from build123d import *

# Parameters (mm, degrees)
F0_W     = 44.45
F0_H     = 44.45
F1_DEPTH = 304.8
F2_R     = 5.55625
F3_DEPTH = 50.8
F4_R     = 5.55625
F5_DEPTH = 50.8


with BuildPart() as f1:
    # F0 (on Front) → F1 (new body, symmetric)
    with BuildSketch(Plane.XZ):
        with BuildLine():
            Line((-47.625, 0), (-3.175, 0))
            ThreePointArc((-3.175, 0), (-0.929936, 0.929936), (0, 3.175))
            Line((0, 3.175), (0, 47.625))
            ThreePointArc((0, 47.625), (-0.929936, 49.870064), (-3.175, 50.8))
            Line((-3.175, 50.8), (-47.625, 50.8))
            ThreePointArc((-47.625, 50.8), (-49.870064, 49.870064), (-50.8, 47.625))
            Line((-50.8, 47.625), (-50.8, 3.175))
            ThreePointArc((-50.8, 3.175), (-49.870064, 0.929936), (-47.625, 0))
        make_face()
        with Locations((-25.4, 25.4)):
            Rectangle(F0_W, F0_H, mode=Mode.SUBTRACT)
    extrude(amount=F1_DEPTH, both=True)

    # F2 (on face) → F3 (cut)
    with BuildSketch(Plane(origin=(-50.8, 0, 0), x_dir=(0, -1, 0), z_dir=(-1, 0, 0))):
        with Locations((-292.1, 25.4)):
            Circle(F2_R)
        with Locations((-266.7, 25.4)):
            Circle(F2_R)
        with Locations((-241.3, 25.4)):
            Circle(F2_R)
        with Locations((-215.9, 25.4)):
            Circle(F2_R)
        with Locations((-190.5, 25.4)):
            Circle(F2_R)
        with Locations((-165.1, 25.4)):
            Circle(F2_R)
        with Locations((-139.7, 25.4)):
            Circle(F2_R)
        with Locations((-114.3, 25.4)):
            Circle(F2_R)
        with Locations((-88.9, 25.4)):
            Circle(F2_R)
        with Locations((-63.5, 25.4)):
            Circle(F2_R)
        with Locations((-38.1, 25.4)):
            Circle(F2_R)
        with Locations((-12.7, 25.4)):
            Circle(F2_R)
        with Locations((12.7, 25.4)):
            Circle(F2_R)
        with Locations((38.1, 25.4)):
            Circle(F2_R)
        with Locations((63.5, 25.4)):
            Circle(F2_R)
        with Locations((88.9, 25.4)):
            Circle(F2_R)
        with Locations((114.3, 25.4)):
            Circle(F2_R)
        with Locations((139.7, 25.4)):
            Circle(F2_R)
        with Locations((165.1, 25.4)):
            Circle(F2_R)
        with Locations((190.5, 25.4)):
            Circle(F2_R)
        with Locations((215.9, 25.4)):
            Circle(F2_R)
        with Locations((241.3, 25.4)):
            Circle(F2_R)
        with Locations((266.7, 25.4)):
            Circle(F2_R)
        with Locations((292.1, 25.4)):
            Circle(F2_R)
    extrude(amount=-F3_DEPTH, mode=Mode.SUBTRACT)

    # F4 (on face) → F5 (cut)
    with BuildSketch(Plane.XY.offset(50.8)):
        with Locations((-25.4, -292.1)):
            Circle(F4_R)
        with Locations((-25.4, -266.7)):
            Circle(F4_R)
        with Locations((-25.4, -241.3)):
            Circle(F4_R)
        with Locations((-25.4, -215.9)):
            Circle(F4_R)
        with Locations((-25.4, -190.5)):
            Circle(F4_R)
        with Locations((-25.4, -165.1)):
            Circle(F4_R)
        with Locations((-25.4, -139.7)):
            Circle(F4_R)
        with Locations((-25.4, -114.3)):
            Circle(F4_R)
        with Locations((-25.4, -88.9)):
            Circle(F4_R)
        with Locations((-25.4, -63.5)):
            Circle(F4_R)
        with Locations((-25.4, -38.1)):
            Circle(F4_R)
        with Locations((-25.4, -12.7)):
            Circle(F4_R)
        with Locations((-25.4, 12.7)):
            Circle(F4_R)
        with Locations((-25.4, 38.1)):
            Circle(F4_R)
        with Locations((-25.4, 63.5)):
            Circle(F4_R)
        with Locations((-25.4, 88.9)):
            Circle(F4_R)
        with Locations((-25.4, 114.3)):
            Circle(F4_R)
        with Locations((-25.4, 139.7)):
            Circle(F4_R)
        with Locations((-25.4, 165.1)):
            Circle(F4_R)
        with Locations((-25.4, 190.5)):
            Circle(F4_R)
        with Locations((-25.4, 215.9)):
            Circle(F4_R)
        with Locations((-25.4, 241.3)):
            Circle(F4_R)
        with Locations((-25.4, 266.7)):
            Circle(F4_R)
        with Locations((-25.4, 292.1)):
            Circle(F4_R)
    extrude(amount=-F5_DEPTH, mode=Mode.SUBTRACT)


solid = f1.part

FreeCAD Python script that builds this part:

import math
import FreeCAD as App
import Part
import Sketcher

V = App.Vector
Q = App.Units.Quantity


def add_polygon(sketch, points):
    """Adds a closed chain of lines whose ends are joined by coincident constraints."""
    first, n = sketch.GeometryCount, len(points)
    for a, b in zip(points, points[1:] + points[:1]):
        sketch.addGeometry(Part.LineSegment(App.Vector(*a, 0), App.Vector(*b, 0)), False)
    for i in range(n):
        sketch.addConstraint(Sketcher.Constraint("Coincident", first + i, 2, first + (i + 1) % n, 1))

doc = App.newDocument("Part")
body = doc.addObject("PartDesign::Body", "Body")

# Sketch on XZ plane
sketch1 = doc.addObject("Sketcher::SketchObject", "Sketch")
body.addObject(sketch1)
sketch1.AttachmentSupport = (doc.XZ_Plane, [""])
sketch1.MapMode = "FlatFace"
sketch1.addGeometry(Part.LineSegment(V(-47.625, 0, 0), V(-3.175, 0, 0)), False)  # 0
sketch1.addGeometry(Part.ArcOfCircle(Part.Circle(V(-3.175, 3.175, 0), V(0, 0, 1), 3.175), math.radians(-89.999998), math.radians(-0.000002)), False)  # 1
sketch1.addGeometry(Part.LineSegment(V(0, 3.175, 0), V(0, 47.625, 0)), False)  # 2
sketch1.addGeometry(Part.ArcOfCircle(Part.Circle(V(-3.175, 47.625, 0), V(0, 0, 1), 3.175), math.radians(0.000002), math.radians(89.999998)), False)  # 3
sketch1.addGeometry(Part.LineSegment(V(-3.175, 50.8, 0), V(-47.625, 50.8, 0)), False)  # 4
sketch1.addGeometry(Part.ArcOfCircle(Part.Circle(V(-47.625, 47.625, 0), V(0, 0, 1), 3.175), math.radians(90.000002), math.radians(179.999998)), False)  # 5
sketch1.addGeometry(Part.LineSegment(V(-50.8, 47.625, 0), V(-50.8, 3.175, 0)), False)  # 6
sketch1.addGeometry(Part.ArcOfCircle(Part.Circle(V(-47.625, 3.175, 0), V(0, 0, 1), 3.175), math.radians(-179.999998), math.radians(-90.000002)), False)  # 7
add_polygon(sketch1, [(-3.175, 3.175), (-47.625, 3.175), (-47.625, 47.625), (-3.175, 47.625)])  # lines 8-11
sketch1.addConstraint([
    Sketcher.Constraint("Tangent", 0, 2, 1, 1),
    Sketcher.Constraint("Tangent", 1, 2, 2, 1),
    Sketcher.Constraint("Tangent", 2, 2, 3, 1),
    Sketcher.Constraint("Tangent", 3, 2, 4, 1),
    Sketcher.Constraint("Tangent", 4, 2, 5, 1),
    Sketcher.Constraint("Tangent", 5, 2, 6, 1),
    Sketcher.Constraint("Tangent", 6, 2, 7, 1),
    Sketcher.Constraint("Tangent", 7, 2, 0, 1),
    Sketcher.Constraint("Horizontal", 0),
    Sketcher.Constraint("Vertical", 2),
    Sketcher.Constraint("Horizontal", 4),
    Sketcher.Constraint("Vertical", 6),
    Sketcher.Constraint("Horizontal", 8),
    Sketcher.Constraint("Vertical", 9),
    Sketcher.Constraint("Horizontal", 10),
    Sketcher.Constraint("Vertical", 11),
    Sketcher.Constraint("Coincident", 8, 2, 7, 3),
    Sketcher.Constraint("Coincident", 9, 2, 5, 3),
    Sketcher.Constraint("Coincident", 10, 2, 3, 3),
    Sketcher.Constraint("Equal", 1, 3),
    Sketcher.Constraint("PointOnObject", 0, 2, -1),
    Sketcher.Constraint("PointOnObject", 1, 2, -2),
    Sketcher.Constraint("Equal", 10, 2),
    Sketcher.Constraint("DistanceY", -1, 1, 3, 2, Q("2 in")),
    Sketcher.Constraint("Radius", 1, Q("0.125 in")),
])
pad1 = doc.addObject("PartDesign::Pad", "Pad")
body.addObject(pad1)
pad1.Profile = sketch1
pad1.Length = Q("24 in")
pad1.Midplane = True

# Sketch on YZ plane
sketch2 = doc.addObject("Sketcher::SketchObject", "Sketch001")
body.addObject(sketch2)
sketch2.AttachmentSupport = (doc.YZ_Plane, [""])
sketch2.MapMode = "FlatFace"
sketch2.AttachmentOffset = App.Placement(V(0, 0, -2 * 25.4), App.Rotation())
sketch2.addGeometry([
    Part.Circle(V(292.1, 25.4, 0), V(0, 0, 1), 5.55625),  # 0
    Part.Circle(V(266.7, 25.4, 0), V(0, 0, 1), 5.55625),  # 1
    Part.Circle(V(241.3, 25.4, 0), V(0, 0, 1), 5.55625),  # 2
    Part.Circle(V(215.9, 25.4, 0), V(0, 0, 1), 5.55625),  # 3
    Part.Circle(V(190.5, 25.4, 0), V(0, 0, 1), 5.55625),  # 4
    Part.Circle(V(165.1, 25.4, 0), V(0, 0, 1), 5.55625),  # 5
    Part.Circle(V(139.7, 25.4, 0), V(0, 0, 1), 5.55625),  # 6
    Part.Circle(V(114.3, 25.4, 0), V(0, 0, 1), 5.55625),  # 7
    Part.Circle(V(88.9, 25.4, 0), V(0, 0, 1), 5.55625),  # 8
    Part.Circle(V(63.5, 25.4, 0), V(0, 0, 1), 5.55625),  # 9
    Part.Circle(V(38.1, 25.4, 0), V(0, 0, 1), 5.55625),  # 10
    Part.Circle(V(12.7, 25.4, 0), V(0, 0, 1), 5.55625),  # 11
    Part.Circle(V(-12.7, 25.4, 0), V(0, 0, 1), 5.55625),  # 12
    Part.Circle(V(-38.1, 25.4, 0), V(0, 0, 1), 5.55625),  # 13
    Part.Circle(V(-63.5, 25.4, 0), V(0, 0, 1), 5.55625),  # 14
    Part.Circle(V(-88.9, 25.4, 0), V(0, 0, 1), 5.55625),  # 15
    Part.Circle(V(-114.3, 25.4, 0), V(0, 0, 1), 5.55625),  # 16
    Part.Circle(V(-139.7, 25.4, 0), V(0, 0, 1), 5.55625),  # 17
    Part.Circle(V(-165.1, 25.4, 0), V(0, 0, 1), 5.55625),  # 18
    Part.Circle(V(-190.5, 25.4, 0), V(0, 0, 1), 5.55625),  # 19
    Part.Circle(V(-215.9, 25.4, 0), V(0, 0, 1), 5.55625),  # 20
    Part.Circle(V(-241.3, 25.4, 0), V(0, 0, 1), 5.55625),  # 21
    Part.Circle(V(-266.7, 25.4, 0), V(0, 0, 1), 5.55625),  # 22
    Part.Circle(V(-292.1, 25.4, 0), V(0, 0, 1), 5.55625),  # 23
], False)
sketch2.addConstraint([
    Sketcher.Constraint("Equal", 0, 1),
    Sketcher.Constraint("Equal", 1, 2),
    Sketcher.Constraint("Equal", 2, 3),
    Sketcher.Constraint("Equal", 3, 4),
    Sketcher.Constraint("Equal", 4, 5),
    Sketcher.Constraint("Equal", 5, 6),
    Sketcher.Constraint("Equal", 6, 7),
    Sketcher.Constraint("Equal", 7, 8),
    Sketcher.Constraint("Equal", 8, 9),
    Sketcher.Constraint("Equal", 9, 10),
    Sketcher.Constraint("Equal", 10, 11),
    Sketcher.Constraint("Equal", 11, 12),
    Sketcher.Constraint("Equal", 12, 13),
    Sketcher.Constraint("Equal", 13, 14),
    Sketcher.Constraint("Equal", 14, 15),
    Sketcher.Constraint("Equal", 15, 16),
    Sketcher.Constraint("Equal", 16, 17),
    Sketcher.Constraint("Equal", 17, 18),
    Sketcher.Constraint("Equal", 18, 19),
    Sketcher.Constraint("Equal", 19, 20),
    Sketcher.Constraint("Equal", 20, 21),
    Sketcher.Constraint("Equal", 21, 22),
    Sketcher.Constraint("Equal", 22, 23),
    Sketcher.Constraint("Symmetric", 11, 3, 12, 3, -2),
    Sketcher.Constraint("Symmetric", 10, 3, 13, 3, -2),
    Sketcher.Constraint("Symmetric", 9, 3, 14, 3, -2),
    Sketcher.Constraint("Symmetric", 8, 3, 15, 3, -2),
    Sketcher.Constraint("Symmetric", 7, 3, 16, 3, -2),
    Sketcher.Constraint("Symmetric", 6, 3, 17, 3, -2),
    Sketcher.Constraint("Symmetric", 5, 3, 18, 3, -2),
    Sketcher.Constraint("Symmetric", 4, 3, 19, 3, -2),
    Sketcher.Constraint("Symmetric", 3, 3, 20, 3, -2),
    Sketcher.Constraint("Symmetric", 2, 3, 21, 3, -2),
    Sketcher.Constraint("Symmetric", 1, 3, 22, 3, -2),
    Sketcher.Constraint("Symmetric", 0, 3, 23, 3, -2),
    Sketcher.Constraint("Horizontal", 0, 3, 1, 3),
    Sketcher.Constraint("Horizontal", 1, 3, 2, 3),
    Sketcher.Constraint("Horizontal", 2, 3, 3, 3),
    Sketcher.Constraint("Horizontal", 3, 3, 4, 3),
    Sketcher.Constraint("Horizontal", 4, 3, 5, 3),
    Sketcher.Constraint("Horizontal", 5, 3, 6, 3),
    Sketcher.Constraint("Horizontal", 6, 3, 7, 3),
    Sketcher.Constraint("Horizontal", 7, 3, 8, 3),
    Sketcher.Constraint("Horizontal", 8, 3, 9, 3),
    Sketcher.Constraint("Horizontal", 9, 3, 10, 3),
    Sketcher.Constraint("Horizontal", 10, 3, 11, 3),
    Sketcher.Constraint("Diameter", 0, Q("0.4375 in")),
    Sketcher.Constraint("DistanceY", -1, 1, 0, 3, Q("1 in")),
    Sketcher.Constraint("DistanceX", 1, 3, 0, 3, Q("1 in")),
    Sketcher.Constraint("DistanceX", 2, 3, 1, 3, Q("1 in")),
    Sketcher.Constraint("DistanceX", 3, 3, 2, 3, Q("1 in")),
    Sketcher.Constraint("DistanceX", 4, 3, 3, 3, Q("1 in")),
    Sketcher.Constraint("DistanceX", 5, 3, 4, 3, Q("1 in")),
    Sketcher.Constraint("DistanceX", 6, 3, 5, 3, Q("1 in")),
    Sketcher.Constraint("DistanceX", 7, 3, 6, 3, Q("1 in")),
    Sketcher.Constraint("DistanceX", 8, 3, 7, 3, Q("1 in")),
    Sketcher.Constraint("DistanceX", 9, 3, 8, 3, Q("1 in")),
    Sketcher.Constraint("DistanceX", 10, 3, 9, 3, Q("1 in")),
    Sketcher.Constraint("DistanceX", 11, 3, 10, 3, Q("1 in")),
    Sketcher.Constraint("DistanceX", 12, 3, 11, 3, Q("1 in")),
])
pocket1 = doc.addObject("PartDesign::Pocket", "Pocket")
body.addObject(pocket1)
pocket1.Profile = sketch2
pocket1.Length = Q("2 in")
pocket1.Reversed = True

# Sketch on XY plane
sketch3 = doc.addObject("Sketcher::SketchObject", "Sketch002")
body.addObject(sketch3)
sketch3.AttachmentSupport = (doc.XY_Plane, [""])
sketch3.MapMode = "FlatFace"
sketch3.AttachmentOffset = App.Placement(V(0, 0, 2 * 25.4), App.Rotation())
sketch3.addGeometry([
    Part.Circle(V(-25.4, -292.1, 0), V(0, 0, 1), 5.55625),  # 0
    Part.Circle(V(-25.4, -266.7, 0), V(0, 0, 1), 5.55625),  # 1
    Part.Circle(V(-25.4, -241.3, 0), V(0, 0, 1), 5.55625),  # 2
    Part.Circle(V(-25.4, -215.9, 0), V(0, 0, 1), 5.55625),  # 3
    Part.Circle(V(-25.4, -190.5, 0), V(0, 0, 1), 5.55625),  # 4
    Part.Circle(V(-25.4, -165.1, 0), V(0, 0, 1), 5.55625),  # 5
    Part.Circle(V(-25.4, -139.7, 0), V(0, 0, 1), 5.55625),  # 6
    Part.Circle(V(-25.4, -114.3, 0), V(0, 0, 1), 5.55625),  # 7
    Part.Circle(V(-25.4, -88.9, 0), V(0, 0, 1), 5.55625),  # 8
    Part.Circle(V(-25.4, -63.5, 0), V(0, 0, 1), 5.55625),  # 9
    Part.Circle(V(-25.4, -38.1, 0), V(0, 0, 1), 5.55625),  # 10
    Part.Circle(V(-25.4, -12.7, 0), V(0, 0, 1), 5.55625),  # 11
    Part.Circle(V(-25.4, 12.7, 0), V(0, 0, 1), 5.55625),  # 12
    Part.Circle(V(-25.4, 38.1, 0), V(0, 0, 1), 5.55625),  # 13
    Part.Circle(V(-25.4, 63.5, 0), V(0, 0, 1), 5.55625),  # 14
    Part.Circle(V(-25.4, 88.9, 0), V(0, 0, 1), 5.55625),  # 15
    Part.Circle(V(-25.4, 114.3, 0), V(0, 0, 1), 5.55625),  # 16
    Part.Circle(V(-25.4, 139.7, 0), V(0, 0, 1), 5.55625),  # 17
    Part.Circle(V(-25.4, 165.1, 0), V(0, 0, 1), 5.55625),  # 18
    Part.Circle(V(-25.4, 190.5, 0), V(0, 0, 1), 5.55625),  # 19
    Part.Circle(V(-25.4, 215.9, 0), V(0, 0, 1), 5.55625),  # 20
    Part.Circle(V(-25.4, 241.3, 0), V(0, 0, 1), 5.55625),  # 21
    Part.Circle(V(-25.4, 266.7, 0), V(0, 0, 1), 5.55625),  # 22
    Part.Circle(V(-25.4, 292.1, 0), V(0, 0, 1), 5.55625),  # 23
], False)
sketch3.addConstraint([
    Sketcher.Constraint("Equal", 0, 1),
    Sketcher.Constraint("Equal", 1, 2),
    Sketcher.Constraint("Equal", 2, 3),
    Sketcher.Constraint("Equal", 3, 4),
    Sketcher.Constraint("Equal", 4, 5),
    Sketcher.Constraint("Equal", 5, 6),
    Sketcher.Constraint("Equal", 6, 7),
    Sketcher.Constraint("Equal", 7, 8),
    Sketcher.Constraint("Equal", 8, 9),
    Sketcher.Constraint("Equal", 9, 10),
    Sketcher.Constraint("Equal", 10, 11),
    Sketcher.Constraint("Equal", 11, 12),
    Sketcher.Constraint("Equal", 12, 13),
    Sketcher.Constraint("Equal", 13, 14),
    Sketcher.Constraint("Equal", 14, 15),
    Sketcher.Constraint("Equal", 15, 16),
    Sketcher.Constraint("Equal", 16, 17),
    Sketcher.Constraint("Equal", 17, 18),
    Sketcher.Constraint("Equal", 18, 19),
    Sketcher.Constraint("Equal", 19, 20),
    Sketcher.Constraint("Equal", 20, 21),
    Sketcher.Constraint("Equal", 21, 22),
    Sketcher.Constraint("Equal", 22, 23),
    Sketcher.Constraint("Symmetric", 11, 3, 12, 3, -1),
    Sketcher.Constraint("Symmetric", 10, 3, 13, 3, -1),
    Sketcher.Constraint("Symmetric", 9, 3, 14, 3, -1),
    Sketcher.Constraint("Symmetric", 8, 3, 15, 3, -1),
    Sketcher.Constraint("Symmetric", 7, 3, 16, 3, -1),
    Sketcher.Constraint("Symmetric", 6, 3, 17, 3, -1),
    Sketcher.Constraint("Symmetric", 5, 3, 18, 3, -1),
    Sketcher.Constraint("Symmetric", 4, 3, 19, 3, -1),
    Sketcher.Constraint("Symmetric", 3, 3, 20, 3, -1),
    Sketcher.Constraint("Symmetric", 2, 3, 21, 3, -1),
    Sketcher.Constraint("Symmetric", 1, 3, 22, 3, -1),
    Sketcher.Constraint("Symmetric", 0, 3, 23, 3, -1),
    Sketcher.Constraint("Vertical", 0, 3, 1, 3),
    Sketcher.Constraint("Vertical", 1, 3, 2, 3),
    Sketcher.Constraint("Vertical", 2, 3, 3, 3),
    Sketcher.Constraint("Vertical", 3, 3, 4, 3),
    Sketcher.Constraint("Vertical", 4, 3, 5, 3),
    Sketcher.Constraint("Vertical", 5, 3, 6, 3),
    Sketcher.Constraint("Vertical", 6, 3, 7, 3),
    Sketcher.Constraint("Vertical", 7, 3, 8, 3),
    Sketcher.Constraint("Vertical", 8, 3, 9, 3),
    Sketcher.Constraint("Vertical", 9, 3, 10, 3),
    Sketcher.Constraint("Vertical", 10, 3, 11, 3),
    Sketcher.Constraint("Diameter", 0, Q("0.4375 in")),
    Sketcher.Constraint("DistanceX", 0, 3, -1, 1, Q("1 in")),
    Sketcher.Constraint("DistanceY", 0, 3, 1, 3, Q("1 in")),
    Sketcher.Constraint("DistanceY", 1, 3, 2, 3, Q("1 in")),
    Sketcher.Constraint("DistanceY", 2, 3, 3, 3, Q("1 in")),
    Sketcher.Constraint("DistanceY", 3, 3, 4, 3, Q("1 in")),
    Sketcher.Constraint("DistanceY", 4, 3, 5, 3, Q("1 in")),
    Sketcher.Constraint("DistanceY", 5, 3, 6, 3, Q("1 in")),
    Sketcher.Constraint("DistanceY", 6, 3, 7, 3, Q("1 in")),
    Sketcher.Constraint("DistanceY", 7, 3, 8, 3, Q("1 in")),
    Sketcher.Constraint("DistanceY", 8, 3, 9, 3, Q("1 in")),
    Sketcher.Constraint("DistanceY", 9, 3, 10, 3, Q("1 in")),
    Sketcher.Constraint("DistanceY", 10, 3, 11, 3, Q("1 in")),
    Sketcher.Constraint("DistanceY", 11, 3, 12, 3, Q("1 in")),
])
pocket2 = doc.addObject("PartDesign::Pocket", "Pocket001")
body.addObject(pocket2)
pocket2.Profile = sketch3
pocket2.Length = Q("2 in")

doc.recompute()
